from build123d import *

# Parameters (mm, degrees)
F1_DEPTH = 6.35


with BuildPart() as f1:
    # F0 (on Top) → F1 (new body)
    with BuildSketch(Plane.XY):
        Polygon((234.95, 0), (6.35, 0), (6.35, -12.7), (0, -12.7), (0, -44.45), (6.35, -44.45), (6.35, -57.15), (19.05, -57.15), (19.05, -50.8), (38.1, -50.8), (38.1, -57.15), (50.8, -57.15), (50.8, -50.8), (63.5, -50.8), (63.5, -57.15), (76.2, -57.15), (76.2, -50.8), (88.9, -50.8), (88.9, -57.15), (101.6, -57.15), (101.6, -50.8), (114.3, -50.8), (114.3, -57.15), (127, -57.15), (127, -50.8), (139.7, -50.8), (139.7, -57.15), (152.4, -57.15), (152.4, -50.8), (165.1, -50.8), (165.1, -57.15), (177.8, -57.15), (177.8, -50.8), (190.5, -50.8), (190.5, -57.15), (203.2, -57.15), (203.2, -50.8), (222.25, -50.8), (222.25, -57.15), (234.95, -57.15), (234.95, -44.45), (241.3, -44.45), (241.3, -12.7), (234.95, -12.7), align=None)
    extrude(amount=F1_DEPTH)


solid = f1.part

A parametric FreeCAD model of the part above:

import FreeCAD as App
import Part
import Sketcher
Q = App.Units.Quantity


def add_polygon(sketch, points):
    """Adds a closed chain of lines whose ends are joined by coincident constraints."""
    first, n = sketch.GeometryCount, len(points)
    for a, b in zip(points, points[1:] + points[:1]):
        sketch.addGeometry(Part.LineSegment(App.Vector(*a, 0), App.Vector(*b, 0)), False)
    for i in range(n):
        sketch.addConstraint(Sketcher.Constraint("Coincident", first + i, 2, first + (i + 1) % n, 1))

doc = App.newDocument("Part")
body = doc.addObject("PartDesign::Body", "Body")

# Sketch on XY plane
sketch1 = body.newObject("Sketcher::SketchObject", "Sketch")
sketch1.AttachmentSupport = (doc.getObject("XY_Plane"), [""])
sketch1.MapMode = "FlatFace"
add_polygon(sketch1, [(234.95, 0), (6.35, 0), (6.35, -12.7), (0, -12.7), (0, -44.45), (6.35, -44.45), (6.35, -57.15), (19.05, -57.15), (19.05, -50.8), (38.1, -50.8), (38.1, -57.15), (50.8, -57.15), (50.8, -50.8), (63.5, -50.8), (63.5, -57.15), (76.2, -57.15), (76.2, -50.8), (88.9, -50.8), (88.9, -57.15), (101.6, -57.15), (101.6, -50.8), (114.3, -50.8), (114.3, -57.15), (127, -57.15), (127, -50.8), (139.7, -50.8), (139.7, -57.15), (152.4, -57.15), (152.4, -50.8), (165.1, -50.8), (165.1, -57.15), (177.8, -57.15), (177.8, -50.8), (190.5, -50.8), (190.5, -57.15), (203.2, -57.15), (203.2, -50.8), (222.25, -50.8), (222.25, -57.15), (234.95, -57.15), (234.95, -44.45), (241.3, -44.45), (241.3, -12.7), (234.95, -12.7)])  # lines 0-43
sketch1.addConstraint([
    Sketcher.Constraint("Horizontal", 0),
    Sketcher.Constraint("Vertical", 1),
    Sketcher.Constraint("Horizontal", 2),
    Sketcher.Constraint("Vertical", 3),
    Sketcher.Constraint("Horizontal", 4),
    Sketcher.Constraint("Vertical", 5),
    Sketcher.Constraint("Horizontal", 6),
    Sketcher.Constraint("Vertical", 7),
    Sketcher.Constraint("Horizontal", 8),
    Sketcher.Constraint("Vertical", 9),
    Sketcher.Constraint("Horizontal", 10),
    Sketcher.Constraint("Vertical", 11),
    Sketcher.Constraint("Horizontal", 12),
    Sketcher.Constraint("Vertical", 13),
    Sketcher.Constraint("Horizontal", 14),
    Sketcher.Constraint("Vertical", 15),
    Sketcher.Constraint("Horizontal", 16),
    Sketcher.Constraint("Vertical", 17),
    Sketcher.Constraint("Horizontal", 18),
    Sketcher.Constraint("Vertical", 19),
    Sketcher.Constraint("Horizontal", 20),
    Sketcher.Constraint("Vertical", 21),
    Sketcher.Constraint("Horizontal", 22),
    Sketcher.Constraint("Vertical", 23),
    Sketcher.Constraint("Horizontal", 24),
    Sketcher.Constraint("Vertical", 25),
    Sketcher.Constraint("Horizontal", 26),
    Sketcher.Constraint("Vertical", 27),
    Sketcher.Constraint("Horizontal", 28),
    Sketcher.Constraint("Vertical", 29),
    Sketcher.Constraint("Horizontal", 30),
    Sketcher.Constraint("Vertical", 31),
    Sketcher.Constraint("Horizontal", 32),
    Sketcher.Constraint("Vertical", 33),
    Sketcher.Constraint("Horizontal", 34),
    Sketcher.Constraint("Vertical", 35),
    Sketcher.Constraint("Horizontal", 36),
    Sketcher.Constraint("Vertical", 37),
    Sketcher.Constraint("Horizontal", 38),
    Sketcher.Constraint("Vertical", 39),
    Sketcher.Constraint("Horizontal", 40),
    Sketcher.Constraint("Vertical", 41),
    Sketcher.Constraint("Horizontal", 42),
    Sketcher.Constraint("Vertical", 43),
    Sketcher.Constraint("PointOnObject", 0, 2, -1),
    Sketcher.Constraint("PointOnObject", 2, 2, -2),
    Sketcher.Constraint("Horizontal", 6, 2, 9, 2),
    Sketcher.Constraint("Horizontal", 8, 2, 11, 2),
    Sketcher.Constraint("Horizontal", 10, 2, 13, 2),
    Sketcher.Constraint("Horizontal", 12, 2, 15, 2),
    Sketcher.Constraint("Horizontal", 14, 2, 17, 2),
    Sketcher.Constraint("Horizontal", 16, 2, 19, 2),
    Sketcher.Constraint("Horizontal", 18, 2, 21, 2),
    Sketcher.Constraint("Horizontal", 20, 2, 23, 2),
    Sketcher.Constraint("Horizontal", 22, 2, 25, 2),
    Sketcher.Constraint("Horizontal", 24, 2, 27, 2),
    Sketcher.Constraint("Horizontal", 26, 2, 29, 2),
    Sketcher.Constraint("Horizontal", 28, 2, 31, 2),
    Sketcher.Constraint("Horizontal", 30, 2, 33, 2),
    Sketcher.Constraint("Horizontal", 32, 2, 35, 2),
    Sketcher.Constraint("Horizontal", 34, 2, 37, 2),
    Sketcher.Constraint("Horizontal", 4, 2, 39, 2),
    Sketcher.Constraint("Horizontal", 2, 2, 41, 2),
    Sketcher.Constraint("Vertical", 1, 2, 4, 2),
    Sketcher.Constraint("Vertical", 39, 2, 42, 2),
    Sketcher.Constraint("Equal", 6, 10),
    Sketcher.Constraint("Equal", 10, 12),
    Sketcher.Constraint("Equal", 12, 14),
    Sketcher.Constraint("Equal", 14, 16),
    Sketcher.Constraint("Equal", 16, 18),
    Sketcher.Constraint("Equal", 18, 20),
    Sketcher.Constraint("Equal", 20, 22),
    Sketcher.Constraint("Equal", 22, 24),
    Sketcher.Constraint("Equal", 24, 26),
    Sketcher.Constraint("Equal", 26, 28),
    Sketcher.Constraint("Equal", 28, 30),
    Sketcher.Constraint("Equal", 30, 32),
    Sketcher.Constraint("Equal", 32, 34),
    Sketcher.Constraint("Equal", 8, 36),
    Sketcher.Constraint("Equal", 34, 38),
    Sketcher.Constraint("Equal", 4, 40),
    Sketcher.Constraint("Equal", 38, 1),
    Sketcher.Constraint("Equal", 1, 5),
    Sketcher.Constraint("Equal", 42, 7),
    Sketcher.Constraint("DistanceX", 0, 2, 0, 1, Q("9 in")),
    Sketcher.Constraint("DistanceX", 6, 1, 6, 2, Q("0.5 in")),
    Sketcher.Constraint("DistanceY", 7, 2, -1, 1, Q("2 in")),
    Sketcher.Constraint("DistanceX", -1, 1, 10, 2, Q("2 in")),
])
pad1 = body.newObject("PartDesign::Pad", "Pad")
pad1.Profile = sketch1
pad1.Length = Q("0.25 in")

doc.recompute()
